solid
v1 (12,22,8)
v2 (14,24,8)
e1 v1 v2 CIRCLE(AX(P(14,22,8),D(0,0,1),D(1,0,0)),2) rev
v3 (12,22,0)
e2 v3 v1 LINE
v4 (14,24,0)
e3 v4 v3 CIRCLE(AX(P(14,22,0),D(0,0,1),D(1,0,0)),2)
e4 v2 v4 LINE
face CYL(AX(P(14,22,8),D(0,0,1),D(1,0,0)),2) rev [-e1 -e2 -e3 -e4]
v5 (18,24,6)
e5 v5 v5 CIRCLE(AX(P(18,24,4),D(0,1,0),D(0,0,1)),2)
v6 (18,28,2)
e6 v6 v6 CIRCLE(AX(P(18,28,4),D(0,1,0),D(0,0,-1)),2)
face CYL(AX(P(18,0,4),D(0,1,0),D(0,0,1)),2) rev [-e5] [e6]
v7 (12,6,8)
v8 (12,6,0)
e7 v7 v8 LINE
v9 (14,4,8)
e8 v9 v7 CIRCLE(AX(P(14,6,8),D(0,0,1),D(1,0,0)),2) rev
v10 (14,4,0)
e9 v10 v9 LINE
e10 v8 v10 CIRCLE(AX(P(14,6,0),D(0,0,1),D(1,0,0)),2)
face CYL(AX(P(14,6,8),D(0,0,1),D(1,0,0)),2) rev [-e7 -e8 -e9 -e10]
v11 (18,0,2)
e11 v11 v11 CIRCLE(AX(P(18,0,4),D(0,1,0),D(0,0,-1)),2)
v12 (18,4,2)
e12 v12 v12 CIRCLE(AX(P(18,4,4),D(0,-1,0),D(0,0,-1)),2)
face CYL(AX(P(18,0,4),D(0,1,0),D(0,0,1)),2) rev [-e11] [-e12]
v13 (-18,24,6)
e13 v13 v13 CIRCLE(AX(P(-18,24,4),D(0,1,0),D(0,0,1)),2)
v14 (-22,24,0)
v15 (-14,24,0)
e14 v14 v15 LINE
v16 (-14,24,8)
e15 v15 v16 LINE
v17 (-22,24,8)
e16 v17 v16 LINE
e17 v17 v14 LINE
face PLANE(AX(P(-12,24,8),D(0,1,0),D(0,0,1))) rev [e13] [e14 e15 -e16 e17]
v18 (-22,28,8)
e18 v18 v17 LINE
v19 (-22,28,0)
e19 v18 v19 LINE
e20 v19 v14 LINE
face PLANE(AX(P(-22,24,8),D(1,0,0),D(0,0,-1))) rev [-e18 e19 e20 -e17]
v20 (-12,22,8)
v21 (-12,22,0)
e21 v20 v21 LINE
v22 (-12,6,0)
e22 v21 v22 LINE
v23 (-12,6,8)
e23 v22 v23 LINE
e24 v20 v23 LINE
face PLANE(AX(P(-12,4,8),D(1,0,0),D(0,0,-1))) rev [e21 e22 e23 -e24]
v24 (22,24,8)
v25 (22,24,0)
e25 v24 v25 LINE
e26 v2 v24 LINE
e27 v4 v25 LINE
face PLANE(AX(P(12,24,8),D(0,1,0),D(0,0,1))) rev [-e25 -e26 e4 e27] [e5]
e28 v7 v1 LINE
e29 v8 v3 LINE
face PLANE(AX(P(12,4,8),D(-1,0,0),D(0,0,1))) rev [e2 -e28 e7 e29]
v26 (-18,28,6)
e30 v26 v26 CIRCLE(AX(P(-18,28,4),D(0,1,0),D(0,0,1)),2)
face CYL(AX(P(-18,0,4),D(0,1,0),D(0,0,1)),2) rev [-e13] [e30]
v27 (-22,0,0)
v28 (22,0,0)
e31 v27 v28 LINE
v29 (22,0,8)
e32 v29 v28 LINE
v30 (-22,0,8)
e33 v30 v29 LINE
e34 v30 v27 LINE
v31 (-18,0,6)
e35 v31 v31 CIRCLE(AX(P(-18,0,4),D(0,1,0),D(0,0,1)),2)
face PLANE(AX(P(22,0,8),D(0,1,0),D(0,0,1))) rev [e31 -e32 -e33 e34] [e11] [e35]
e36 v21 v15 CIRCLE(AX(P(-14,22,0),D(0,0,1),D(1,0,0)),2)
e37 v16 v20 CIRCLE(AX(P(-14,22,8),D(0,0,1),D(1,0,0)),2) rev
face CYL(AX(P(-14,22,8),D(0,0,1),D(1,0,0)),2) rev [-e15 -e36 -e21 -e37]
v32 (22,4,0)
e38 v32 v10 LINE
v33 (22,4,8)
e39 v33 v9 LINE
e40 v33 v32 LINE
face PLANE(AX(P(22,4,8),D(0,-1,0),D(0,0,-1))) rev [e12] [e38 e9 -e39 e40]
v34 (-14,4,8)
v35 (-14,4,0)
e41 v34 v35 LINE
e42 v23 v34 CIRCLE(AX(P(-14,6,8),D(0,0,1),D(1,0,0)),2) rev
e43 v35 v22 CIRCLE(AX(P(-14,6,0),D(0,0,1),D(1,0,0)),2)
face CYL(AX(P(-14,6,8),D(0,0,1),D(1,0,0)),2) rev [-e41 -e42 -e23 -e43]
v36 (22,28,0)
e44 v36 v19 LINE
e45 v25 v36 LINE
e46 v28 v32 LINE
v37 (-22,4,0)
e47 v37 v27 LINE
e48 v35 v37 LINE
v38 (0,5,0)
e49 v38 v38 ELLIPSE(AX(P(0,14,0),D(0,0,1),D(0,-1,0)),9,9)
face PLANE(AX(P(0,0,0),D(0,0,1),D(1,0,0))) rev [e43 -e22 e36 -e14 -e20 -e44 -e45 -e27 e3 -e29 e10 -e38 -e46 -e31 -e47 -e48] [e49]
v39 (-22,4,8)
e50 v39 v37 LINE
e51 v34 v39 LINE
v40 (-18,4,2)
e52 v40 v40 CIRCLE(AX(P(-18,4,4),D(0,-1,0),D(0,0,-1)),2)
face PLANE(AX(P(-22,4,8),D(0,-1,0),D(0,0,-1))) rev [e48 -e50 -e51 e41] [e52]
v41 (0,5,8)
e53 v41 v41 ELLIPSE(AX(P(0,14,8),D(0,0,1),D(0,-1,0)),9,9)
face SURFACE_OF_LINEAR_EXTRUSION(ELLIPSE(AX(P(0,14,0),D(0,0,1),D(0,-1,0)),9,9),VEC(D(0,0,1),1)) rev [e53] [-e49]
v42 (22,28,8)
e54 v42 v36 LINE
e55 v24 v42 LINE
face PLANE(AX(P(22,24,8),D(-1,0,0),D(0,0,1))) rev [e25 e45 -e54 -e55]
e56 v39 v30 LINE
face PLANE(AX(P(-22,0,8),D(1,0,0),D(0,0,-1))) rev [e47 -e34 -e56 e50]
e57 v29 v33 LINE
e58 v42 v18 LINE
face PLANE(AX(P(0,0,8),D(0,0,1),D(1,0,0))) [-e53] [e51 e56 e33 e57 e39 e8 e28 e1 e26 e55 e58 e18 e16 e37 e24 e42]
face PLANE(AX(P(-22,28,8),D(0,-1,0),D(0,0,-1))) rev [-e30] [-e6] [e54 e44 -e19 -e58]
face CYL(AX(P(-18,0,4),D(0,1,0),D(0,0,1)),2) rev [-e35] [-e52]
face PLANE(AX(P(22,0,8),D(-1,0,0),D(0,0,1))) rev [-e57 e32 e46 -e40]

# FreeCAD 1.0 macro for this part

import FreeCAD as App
import Part
import Sketcher

V = App.Vector


def edges_at(feature, points):
    """Names of the edges that pass closest to the given points."""
    edges = feature.Shape.Edges
    near = lambda p: min(range(len(edges)), key=lambda i: edges[i].distToShape(Part.Vertex(*p))[0])
    return sorted({f"Edge{near(p) + 1}" for p in points})

doc = App.newDocument("Part")
body = doc.addObject("PartDesign::Body", "Body")

# Sketch on XY plane
sketch1 = doc.addObject("Sketcher::SketchObject", "Sketch")
body.addObject(sketch1)
sketch1.AttachmentSupport = (doc.XY_Plane, [""])
sketch1.MapMode = "FlatFace"
sketch1.addGeometry(Part.LineSegment(V(-22, 0, 0), V(22, 0, 0)), False)
sketch1.addGeometry(Part.LineSegment(V(22, 0, 0), V(22, 4, 0)), False)
sketch1.addGeometry(Part.LineSegment(V(22, 4, 0), V(12, 4, 0)), False)
sketch1.addGeometry(Part.LineSegment(V(12, 4, 0), V(12, 24, 0)), False)
sketch1.addGeometry(Part.LineSegment(V(12, 24, 0), V(22, 24, 0)), False)
sketch1.addGeometry(Part.LineSegment(V(22, 24, 0), V(22, 28, 0)), False)
sketch1.addGeometry(Part.LineSegment(V(22, 28, 0), V(-22, 28, 0)), False)
sketch1.addGeometry(Part.LineSegment(V(-22, 28, 0), V(-22, 24, 0)), False)
sketch1.addGeometry(Part.LineSegment(V(-22, 24, 0), V(-12, 24, 0)), False)
sketch1.addGeometry(Part.LineSegment(V(-12, 24, 0), V(-12, 4, 0)), False)
sketch1.addGeometry(Part.LineSegment(V(-12, 4, 0), V(-22, 4, 0)), False)
sketch1.addGeometry(Part.LineSegment(V(-22, 4, 0), V(-22, 0, 0)), False)
sketch1.addConstraint(Sketcher.Constraint("Coincident", 0, 2, 1, 1))
sketch1.addConstraint(Sketcher.Constraint("Coincident", 1, 2, 2, 1))
sketch1.addConstraint(Sketcher.Constraint("Coincident", 2, 2, 3, 1))
sketch1.addConstraint(Sketcher.Constraint("Coincident", 3, 2, 4, 1))
sketch1.addConstraint(Sketcher.Constraint("Coincident", 4, 2, 5, 1))
sketch1.addConstraint(Sketcher.Constraint("Coincident", 5, 2, 6, 1))
sketch1.addConstraint(Sketcher.Constraint("Coincident", 6, 2, 7, 1))
sketch1.addConstraint(Sketcher.Constraint("Coincident", 7, 2, 8, 1))
sketch1.addConstraint(Sketcher.Constraint("Coincident", 8, 2, 9, 1))
sketch1.addConstraint(Sketcher.Constraint("Coincident", 9, 2, 10, 1))
sketch1.addConstraint(Sketcher.Constraint("Coincident", 10, 2, 11, 1))
sketch1.addConstraint(Sketcher.Constraint("Coincident", 11, 2, 0, 1))
sketch1.addConstraint(Sketcher.Constraint("Horizontal", 0))
sketch1.addConstraint(Sketcher.Constraint("Vertical", 1))
sketch1.addConstraint(Sketcher.Constraint("Horizontal", 2))
sketch1.addConstraint(Sketcher.Constraint("Vertical", 3))
sketch1.addConstraint(Sketcher.Constraint("Horizontal", 4))
sketch1.addConstraint(Sketcher.Constraint("Vertical", 5))
sketch1.addConstraint(Sketcher.Constraint("Horizontal", 6))
sketch1.addConstraint(Sketcher.Constraint("Vertical", 7))
sketch1.addConstraint(Sketcher.Constraint("Horizontal", 8))
sketch1.addConstraint(Sketcher.Constraint("Vertical", 9))
sketch1.addConstraint(Sketcher.Constraint("Horizontal", 10))
sketch1.addConstraint(Sketcher.Constraint("Vertical", 11))
sketch1.addConstraint(Sketcher.Constraint("Symmetric", 0, 2, 11, 2, -1, 1))
sketch1.addConstraint(Sketcher.Constraint("Symmetric", 4, 2, 7, 2, -2))
sketch1.addConstraint(Sketcher.Constraint("Symmetric", 2, 2, 9, 2, -2))
sketch1.addConstraint(Sketcher.Constraint("Vertical", 1, 2, 4, 2))
sketch1.addConstraint(Sketcher.Constraint("Equal", 1, 5))
sketch1.addConstraint(Sketcher.Constraint("DistanceX", 0, 1, 0, 2, 44.0))
sketch1.addConstraint(Sketcher.Constraint("DistanceX", 2, 2, 2, 1, 10.0))
sketch1.addConstraint(Sketcher.Constraint("DistanceY", 1, 1, 1, 2, 4.0))
sketch1.addConstraint(Sketcher.Constraint("DistanceY", 3, 1, 3, 2, 20.0))
pad1 = doc.addObject("PartDesign::Pad", "Pad")
body.addObject(pad1)
pad1.Profile = sketch1
pad1.Length = 8

# Sketch on XY plane
sketch2 = doc.addObject("Sketcher::SketchObject", "Sketch001")
body.addObject(sketch2)
sketch2.AttachmentSupport = (doc.XY_Plane, [""])
sketch2.MapMode = "FlatFace"
sketch2.AttachmentOffset = App.Placement(V(0, 0, 8), App.Rotation())
sketch2.addGeometry(Part.Ellipse(V(-9, 14, 0), V(0, 5, 0), V(0, 14, 0)), False)
sketch2.addConstraint(Sketcher.Constraint("Block", 0))
pocket1 = doc.addObject("PartDesign::Pocket", "Pocket")
body.addObject(pocket1)
pocket1.Profile = sketch2
pocket1.Type = "ThroughAll"
doc.recompute()

fillet = doc.addObject("PartDesign::Fillet", "Fillet")
body.addObject(fillet)
fillet.Base = (pocket1, edges_at(pocket1, [
    (-12, 4, 4),
    (-12, 24, 4),
    (12, 24, 4),
    (12, 4, 4),
]))
fillet.Radius = 2

# Sketch on XZ plane
sketch3 = doc.addObject("Sketcher::SketchObject", "Sketch002")
body.addObject(sketch3)
sketch3.AttachmentSupport = (doc.XZ_Plane, [""])
sketch3.MapMode = "FlatFace"
sketch3.AttachmentOffset = App.Placement(V(0, 0, -28), App.Rotation())
sketch3.addGeometry(Part.Circle(V(-18, 4, 0), V(0, 0, 1), 2), False)
sketch3.addGeometry(Part.Circle(V(18, 4, 0), V(0, 0, 1), 2), False)
sketch3.addConstraint(Sketcher.Constraint("Equal", 0, 1))
sketch3.addConstraint(Sketcher.Constraint("Symmetric", 0, 3, 1, 3, -2))
sketch3.addConstraint(Sketcher.Constraint("Diameter", 0, 4.0))
sketch3.addConstraint(Sketcher.Constraint("DistanceX", 0, 3, -1, 1, 18.0))
sketch3.addConstraint(Sketcher.Constraint("DistanceY", -1, 1, 0, 3, 4.0))
pocket2 = doc.addObject("PartDesign::Pocket", "Pocket001")
body.addObject(pocket2)
pocket2.Profile = sketch3
pocket2.Type = "ThroughAll"
pocket2.Reversed = True

doc.recompute()
